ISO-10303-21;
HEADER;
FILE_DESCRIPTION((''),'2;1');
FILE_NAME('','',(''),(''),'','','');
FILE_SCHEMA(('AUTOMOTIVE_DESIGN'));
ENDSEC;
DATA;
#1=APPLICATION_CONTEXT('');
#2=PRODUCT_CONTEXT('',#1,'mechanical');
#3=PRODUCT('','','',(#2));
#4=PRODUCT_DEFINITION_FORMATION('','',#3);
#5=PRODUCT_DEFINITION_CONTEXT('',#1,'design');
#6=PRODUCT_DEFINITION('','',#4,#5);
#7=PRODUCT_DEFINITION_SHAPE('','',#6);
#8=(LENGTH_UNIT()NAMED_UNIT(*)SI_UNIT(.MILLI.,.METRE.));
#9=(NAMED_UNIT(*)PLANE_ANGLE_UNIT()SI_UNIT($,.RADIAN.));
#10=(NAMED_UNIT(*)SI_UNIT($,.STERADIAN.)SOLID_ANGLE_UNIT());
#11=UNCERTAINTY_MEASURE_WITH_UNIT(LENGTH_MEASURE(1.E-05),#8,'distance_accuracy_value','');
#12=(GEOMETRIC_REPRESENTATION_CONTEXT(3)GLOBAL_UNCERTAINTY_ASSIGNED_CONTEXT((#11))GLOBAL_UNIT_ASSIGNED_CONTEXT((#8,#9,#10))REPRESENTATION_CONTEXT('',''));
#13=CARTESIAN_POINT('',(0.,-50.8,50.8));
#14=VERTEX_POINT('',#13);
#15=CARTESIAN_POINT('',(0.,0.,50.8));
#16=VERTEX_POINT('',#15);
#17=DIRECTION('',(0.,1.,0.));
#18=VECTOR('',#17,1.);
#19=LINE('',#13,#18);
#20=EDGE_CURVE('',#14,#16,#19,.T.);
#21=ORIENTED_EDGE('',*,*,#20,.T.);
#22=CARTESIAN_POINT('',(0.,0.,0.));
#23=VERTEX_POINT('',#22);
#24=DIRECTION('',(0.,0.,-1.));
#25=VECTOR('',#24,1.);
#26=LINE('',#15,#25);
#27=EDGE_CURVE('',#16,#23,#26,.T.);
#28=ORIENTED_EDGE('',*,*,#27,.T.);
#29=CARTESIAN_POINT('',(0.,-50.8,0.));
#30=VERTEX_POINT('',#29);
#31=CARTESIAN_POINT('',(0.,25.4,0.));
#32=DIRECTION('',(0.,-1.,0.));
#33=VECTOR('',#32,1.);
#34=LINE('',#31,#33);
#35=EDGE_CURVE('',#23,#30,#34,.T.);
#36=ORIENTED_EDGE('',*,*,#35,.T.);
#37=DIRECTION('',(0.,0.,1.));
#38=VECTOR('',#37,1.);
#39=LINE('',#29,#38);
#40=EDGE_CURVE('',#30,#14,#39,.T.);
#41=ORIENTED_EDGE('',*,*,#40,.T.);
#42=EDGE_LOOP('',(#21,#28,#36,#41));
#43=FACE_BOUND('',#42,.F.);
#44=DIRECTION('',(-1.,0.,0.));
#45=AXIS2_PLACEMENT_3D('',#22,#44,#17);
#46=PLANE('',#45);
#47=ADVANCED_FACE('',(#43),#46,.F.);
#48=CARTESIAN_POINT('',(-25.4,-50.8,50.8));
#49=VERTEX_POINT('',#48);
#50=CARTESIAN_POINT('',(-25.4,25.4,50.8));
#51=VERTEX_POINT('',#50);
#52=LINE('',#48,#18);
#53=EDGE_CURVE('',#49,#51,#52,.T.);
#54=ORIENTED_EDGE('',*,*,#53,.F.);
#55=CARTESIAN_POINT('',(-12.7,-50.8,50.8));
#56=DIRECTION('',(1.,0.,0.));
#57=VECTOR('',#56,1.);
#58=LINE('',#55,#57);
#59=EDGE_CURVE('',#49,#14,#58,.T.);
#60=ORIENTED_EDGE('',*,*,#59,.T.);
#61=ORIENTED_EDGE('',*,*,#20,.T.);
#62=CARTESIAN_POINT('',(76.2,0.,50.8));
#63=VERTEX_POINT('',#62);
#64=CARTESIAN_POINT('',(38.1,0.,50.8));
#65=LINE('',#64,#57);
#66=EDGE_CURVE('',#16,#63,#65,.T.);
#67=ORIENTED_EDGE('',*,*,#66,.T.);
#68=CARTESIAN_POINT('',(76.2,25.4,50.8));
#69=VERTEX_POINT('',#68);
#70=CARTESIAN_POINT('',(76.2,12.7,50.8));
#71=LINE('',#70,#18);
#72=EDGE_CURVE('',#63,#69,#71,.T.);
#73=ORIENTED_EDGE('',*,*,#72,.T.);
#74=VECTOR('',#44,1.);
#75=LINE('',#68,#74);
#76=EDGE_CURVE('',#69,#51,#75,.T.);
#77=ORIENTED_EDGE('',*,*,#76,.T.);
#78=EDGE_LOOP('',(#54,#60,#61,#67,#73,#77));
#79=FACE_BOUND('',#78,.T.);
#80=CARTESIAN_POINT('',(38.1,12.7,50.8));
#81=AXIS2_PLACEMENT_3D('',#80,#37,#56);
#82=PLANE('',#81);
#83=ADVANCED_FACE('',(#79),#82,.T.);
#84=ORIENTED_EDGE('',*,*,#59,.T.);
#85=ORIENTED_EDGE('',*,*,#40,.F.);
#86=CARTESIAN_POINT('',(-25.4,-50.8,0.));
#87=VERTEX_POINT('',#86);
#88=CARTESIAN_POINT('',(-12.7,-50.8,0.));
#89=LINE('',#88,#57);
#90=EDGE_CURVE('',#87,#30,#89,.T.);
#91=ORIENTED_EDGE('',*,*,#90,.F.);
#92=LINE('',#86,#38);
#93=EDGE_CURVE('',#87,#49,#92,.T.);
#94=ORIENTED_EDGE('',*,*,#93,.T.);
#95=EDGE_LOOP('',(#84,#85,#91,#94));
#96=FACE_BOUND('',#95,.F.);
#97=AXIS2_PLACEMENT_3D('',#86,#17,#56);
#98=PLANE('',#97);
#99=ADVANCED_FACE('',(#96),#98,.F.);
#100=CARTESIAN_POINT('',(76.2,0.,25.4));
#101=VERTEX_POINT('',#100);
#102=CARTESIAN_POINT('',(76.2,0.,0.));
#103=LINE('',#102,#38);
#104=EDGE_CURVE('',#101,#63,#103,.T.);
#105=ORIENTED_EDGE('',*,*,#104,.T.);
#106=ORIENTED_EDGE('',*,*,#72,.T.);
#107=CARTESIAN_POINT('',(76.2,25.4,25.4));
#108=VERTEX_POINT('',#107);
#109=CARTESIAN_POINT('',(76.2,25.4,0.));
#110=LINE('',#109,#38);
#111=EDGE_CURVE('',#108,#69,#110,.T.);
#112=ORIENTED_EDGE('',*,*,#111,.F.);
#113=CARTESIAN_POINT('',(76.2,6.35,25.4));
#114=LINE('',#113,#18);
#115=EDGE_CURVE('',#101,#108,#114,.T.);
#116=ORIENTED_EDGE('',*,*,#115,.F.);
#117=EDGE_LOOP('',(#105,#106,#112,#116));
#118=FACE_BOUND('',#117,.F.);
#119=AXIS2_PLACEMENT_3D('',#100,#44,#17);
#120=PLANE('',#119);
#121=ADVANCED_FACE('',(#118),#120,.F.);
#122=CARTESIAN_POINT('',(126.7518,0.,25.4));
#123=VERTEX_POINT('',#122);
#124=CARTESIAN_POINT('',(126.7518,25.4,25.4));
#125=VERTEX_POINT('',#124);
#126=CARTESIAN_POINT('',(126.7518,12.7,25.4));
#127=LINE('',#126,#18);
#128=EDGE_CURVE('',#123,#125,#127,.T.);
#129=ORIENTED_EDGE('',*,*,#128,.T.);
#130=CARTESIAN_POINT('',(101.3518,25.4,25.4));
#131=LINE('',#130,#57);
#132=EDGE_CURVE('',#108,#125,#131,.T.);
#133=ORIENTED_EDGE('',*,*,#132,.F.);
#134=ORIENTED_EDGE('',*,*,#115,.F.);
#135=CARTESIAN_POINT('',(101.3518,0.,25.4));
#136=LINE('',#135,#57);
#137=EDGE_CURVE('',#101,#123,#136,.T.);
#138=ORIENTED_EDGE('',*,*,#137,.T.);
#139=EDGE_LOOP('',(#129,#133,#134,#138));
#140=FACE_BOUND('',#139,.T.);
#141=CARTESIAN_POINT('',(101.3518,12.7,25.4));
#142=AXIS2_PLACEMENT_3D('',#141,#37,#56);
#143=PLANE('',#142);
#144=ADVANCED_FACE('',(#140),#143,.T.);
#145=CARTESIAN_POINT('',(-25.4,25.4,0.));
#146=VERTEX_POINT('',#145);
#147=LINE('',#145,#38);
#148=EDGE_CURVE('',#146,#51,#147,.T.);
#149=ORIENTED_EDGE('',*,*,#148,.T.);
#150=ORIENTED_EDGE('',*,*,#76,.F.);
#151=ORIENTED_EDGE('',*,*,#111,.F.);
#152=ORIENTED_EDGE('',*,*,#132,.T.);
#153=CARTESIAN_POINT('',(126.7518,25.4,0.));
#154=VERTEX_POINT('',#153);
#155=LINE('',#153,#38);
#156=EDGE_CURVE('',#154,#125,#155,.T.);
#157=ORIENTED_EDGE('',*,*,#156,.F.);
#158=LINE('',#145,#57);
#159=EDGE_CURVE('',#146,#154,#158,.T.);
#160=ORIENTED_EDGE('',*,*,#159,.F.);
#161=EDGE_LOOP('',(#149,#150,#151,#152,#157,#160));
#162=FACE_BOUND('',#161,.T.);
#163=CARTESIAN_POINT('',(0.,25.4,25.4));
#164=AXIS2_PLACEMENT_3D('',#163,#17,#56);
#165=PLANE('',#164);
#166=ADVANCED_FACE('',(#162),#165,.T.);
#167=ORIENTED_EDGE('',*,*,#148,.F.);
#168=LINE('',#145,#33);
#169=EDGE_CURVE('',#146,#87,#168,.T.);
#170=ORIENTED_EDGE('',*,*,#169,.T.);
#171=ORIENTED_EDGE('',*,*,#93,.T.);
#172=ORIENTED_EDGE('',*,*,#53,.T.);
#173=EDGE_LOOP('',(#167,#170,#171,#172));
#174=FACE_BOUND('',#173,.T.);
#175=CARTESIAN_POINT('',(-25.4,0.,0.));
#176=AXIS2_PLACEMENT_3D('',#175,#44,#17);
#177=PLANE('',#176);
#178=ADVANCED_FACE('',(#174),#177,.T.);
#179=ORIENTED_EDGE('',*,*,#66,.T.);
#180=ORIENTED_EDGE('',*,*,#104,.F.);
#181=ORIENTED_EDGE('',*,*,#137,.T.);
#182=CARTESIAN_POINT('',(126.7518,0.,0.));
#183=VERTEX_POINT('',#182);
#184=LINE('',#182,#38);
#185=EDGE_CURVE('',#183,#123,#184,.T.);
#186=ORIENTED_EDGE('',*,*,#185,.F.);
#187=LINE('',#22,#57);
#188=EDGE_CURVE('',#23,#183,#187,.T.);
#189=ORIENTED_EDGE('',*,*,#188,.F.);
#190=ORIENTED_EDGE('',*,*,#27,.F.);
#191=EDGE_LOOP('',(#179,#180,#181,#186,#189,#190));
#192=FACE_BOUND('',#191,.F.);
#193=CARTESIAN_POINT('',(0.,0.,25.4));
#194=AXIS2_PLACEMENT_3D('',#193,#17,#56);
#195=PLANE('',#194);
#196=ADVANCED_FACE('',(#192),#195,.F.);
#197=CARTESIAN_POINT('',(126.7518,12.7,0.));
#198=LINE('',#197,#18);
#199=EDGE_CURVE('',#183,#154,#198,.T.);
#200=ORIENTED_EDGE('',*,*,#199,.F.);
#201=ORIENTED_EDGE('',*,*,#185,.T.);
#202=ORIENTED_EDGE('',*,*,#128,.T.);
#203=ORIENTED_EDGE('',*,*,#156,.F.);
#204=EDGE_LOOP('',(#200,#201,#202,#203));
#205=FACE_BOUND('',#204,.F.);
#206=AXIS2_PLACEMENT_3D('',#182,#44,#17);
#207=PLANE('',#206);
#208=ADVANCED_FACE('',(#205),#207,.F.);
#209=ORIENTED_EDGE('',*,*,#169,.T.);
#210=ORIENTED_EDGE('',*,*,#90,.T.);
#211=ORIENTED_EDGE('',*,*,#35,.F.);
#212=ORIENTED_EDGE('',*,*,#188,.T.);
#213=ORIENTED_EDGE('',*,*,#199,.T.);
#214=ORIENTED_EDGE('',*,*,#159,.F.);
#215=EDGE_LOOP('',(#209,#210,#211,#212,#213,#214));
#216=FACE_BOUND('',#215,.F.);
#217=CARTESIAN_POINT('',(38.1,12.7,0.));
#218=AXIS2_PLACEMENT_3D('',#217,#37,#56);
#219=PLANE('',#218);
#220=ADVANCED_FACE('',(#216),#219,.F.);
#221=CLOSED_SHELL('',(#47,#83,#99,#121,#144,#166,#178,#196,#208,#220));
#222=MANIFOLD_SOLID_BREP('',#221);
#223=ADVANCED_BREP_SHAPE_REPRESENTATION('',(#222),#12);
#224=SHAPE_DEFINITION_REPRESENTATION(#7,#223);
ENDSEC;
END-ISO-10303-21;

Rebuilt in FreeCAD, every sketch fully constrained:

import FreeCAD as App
import Part
import Sketcher
from FreeCAD import Vector
Q = App.Units.Quantity

doc = App.newDocument("Part")
body = doc.addObject("PartDesign::Body", "Body")

# Sketch on XY plane
sketch1 = body.newObject("Sketcher::SketchObject", "Sketch")
sketch1.AttachmentSupport = (doc.getObject("XY_Plane"), [""])
sketch1.MapMode = "FlatFace"
sketch1.addGeometry([
    Part.LineSegment(Vector(-25, 0, 0), Vector(-25, -51, 0)),
    Part.LineSegment(Vector(-25, -51, 0), Vector(0, -51, 0)),
    Part.LineSegment(Vector(0, -51, 0), Vector(0, 0, 0)),
    Part.LineSegment(Vector(0, 0, 0), Vector(-25, 0, 0)),
], False)
sketch1.addConstraint([
    Sketcher.Constraint("Coincident", 0, 2, 1, 1),
    Sketcher.Constraint("Coincident", 1, 2, 2, 1),
    Sketcher.Constraint("Coincident", 2, 2, 3, 1),
    Sketcher.Constraint("Coincident", 3, 2, 0, 1),
    Sketcher.Constraint("Vertical", 0),
    Sketcher.Constraint("Horizontal", 1),
    Sketcher.Constraint("Vertical", 2),
    Sketcher.Constraint("Horizontal", 3),
    Sketcher.Constraint("Coincident", 2, 2, -1, 1),
    Sketcher.Constraint("DistanceX", 1, 1, 1, 2, Q("1 in")),
    Sketcher.Constraint("DistanceY", 0, 2, 0, 1, Q("2 in")),
])
pad1 = body.newObject("PartDesign::Pad", "Pad")
pad1.Profile = sketch1
pad1.Length = Q("2 in")

# Sketch on XY plane
sketch2 = body.newObject("Sketcher::SketchObject", "Sketch001")
sketch2.AttachmentSupport = (doc.getObject("XY_Plane"), [""])
sketch2.MapMode = "FlatFace"
sketch2.addGeometry([
    Part.LineSegment(Vector(-25, 25, 0), Vector(-25, 0, 0)),
    Part.LineSegment(Vector(-25, 0, 0), Vector(0, 0, 0)),
    Part.LineSegment(Vector(0, 0, 0), Vector(0, 25, 0)),
    Part.LineSegment(Vector(0, 25, 0), Vector(-25, 25, 0)),
], False)
sketch2.addConstraint([
    Sketcher.Constraint("Coincident", 0, 2, 1, 1),
    Sketcher.Constraint("Coincident", 1, 2, 2, 1),
    Sketcher.Constraint("Coincident", 2, 2, 3, 1),
    Sketcher.Constraint("Coincident", 3, 2, 0, 1),
    Sketcher.Constraint("Vertical", 0),
    Sketcher.Constraint("Horizontal", 1),
    Sketcher.Constraint("Vertical", 2),
    Sketcher.Constraint("Horizontal", 3),
    Sketcher.Constraint("Coincident", 1, 2, -1, 1),
    Sketcher.Constraint("Equal", 3, 0),
    Sketcher.Constraint("DistanceX", 1, 1, 1, 2, Q("1 in")),
])
pad2 = body.newObject("PartDesign::Pad", "Pad001")
pad2.Profile = sketch2
pad2.Length = Q("2 in")

# Sketch on XY plane
sketch3 = body.newObject("Sketcher::SketchObject", "Sketch002")
sketch3.AttachmentSupport = (doc.getObject("XY_Plane"), [""])
sketch3.MapMode = "FlatFace"
sketch3.addGeometry([
    Part.LineSegment(Vector(0, 25, 0), Vector(0, 0, 0)),
    Part.LineSegment(Vector(0, 0, 0), Vector(76, 0, 0)),
    Part.LineSegment(Vector(76, 0, 0), Vector(76, 25, 0)),
    Part.LineSegment(Vector(76, 25, 0), Vector(0, 25, 0)),
], False)
sketch3.addConstraint([
    Sketcher.Constraint("Coincident", 0, 2, 1, 1),
    Sketcher.Constraint("Coincident", 1, 2, 2, 1),
    Sketcher.Constraint("Coincident", 2, 2, 3, 1),
    Sketcher.Constraint("Coincident", 3, 2, 0, 1),
    Sketcher.Constraint("Vertical", 0),
    Sketcher.Constraint("Horizontal", 1),
    Sketcher.Constraint("Vertical", 2),
    Sketcher.Constraint("Horizontal", 3),
    Sketcher.Constraint("Coincident", 0, 2, -1, 1),
    Sketcher.Constraint("DistanceX", 1, 1, 1, 2, Q("3 in")),
    Sketcher.Constraint("DistanceY", 0, 2, 0, 1, Q("1 in")),
])
pad3 = body.newObject("PartDesign::Pad", "Pad002")
pad3.Profile = sketch3
pad3.Length = Q("1 in")

# Sketch on XY plane
sketch4 = body.newObject("Sketcher::SketchObject", "Sketch003")
sketch4.AttachmentSupport = (doc.getObject("XY_Plane"), [""])
sketch4.MapMode = "FlatFace"
sketch4.AttachmentOffset = App.Placement(Vector(0, 0, 1 * 25.4), App.Rotation())
sketch4.addGeometry([
    Part.LineSegment(Vector(0, 25, 0), Vector(0, 0, 0)),
    Part.LineSegment(Vector(0, 0, 0), Vector(76, 0, 0)),
    Part.LineSegment(Vector(76, 0, 0), Vector(76, 25, 0)),
    Part.LineSegment(Vector(76, 25, 0), Vector(0, 25, 0)),
], False)
sketch4.addConstraint([
    Sketcher.Constraint("Coincident", 0, 2, 1, 1),
    Sketcher.Constraint("Coincident", 1, 2, 2, 1),
    Sketcher.Constraint("Coincident", 2, 2, 3, 1),
    Sketcher.Constraint("Coincident", 3, 2, 0, 1),
    Sketcher.Constraint("Vertical", 0),
    Sketcher.Constraint("Horizontal", 1),
    Sketcher.Constraint("Vertical", 2),
    Sketcher.Constraint("Horizontal", 3),
    Sketcher.Constraint("Coincident", 0, 2, -1, 1),
    Sketcher.Constraint("DistanceX", 1, 1, 1, 2, Q("3 in")),
    Sketcher.Constraint("DistanceY", 0, 2, 0, 1, Q("1 in")),
])
pad4 = body.newObject("PartDesign::Pad", "Pad003")
pad4.Profile = sketch4
pad4.Length = Q("1 in")

# Sketch on XY plane
sketch5 = body.newObject("Sketcher::SketchObject", "Sketch004")
sketch5.AttachmentSupport = (doc.getObject("XY_Plane"), [""])
sketch5.MapMode = "FlatFace"
sketch5.addGeometry([
    Part.LineSegment(Vector(76, 25, 0), Vector(76, 0, 0)),
    Part.LineSegment(Vector(76, 0, 0), Vector(127, 0, 0)),
    Part.LineSegment(Vector(127, 0, 0), Vector(127, 25, 0)),
    Part.LineSegment(Vector(127, 25, 0), Vector(76, 25, 0)),
], False)
sketch5.addConstraint([
    Sketcher.Constraint("Coincident", 0, 2, 1, 1),
    Sketcher.Constraint("Coincident", 1, 2, 2, 1),
    Sketcher.Constraint("Coincident", 2, 2, 3, 1),
    Sketcher.Constraint("Coincident", 3, 2, 0, 1),
    Sketcher.Constraint("Vertical", 0),
    Sketcher.Constraint("Horizontal", 1),
    Sketcher.Constraint("Vertical", 2),
    Sketcher.Constraint("Horizontal", 3),
    Sketcher.Constraint("PointOnObject", 0, 2, -1),
    Sketcher.Constraint("DistanceX", 1, 1, 1, 2, Q("2 in")),
    Sketcher.Constraint("DistanceY", 0, 2, 0, 1, Q("1 in")),
    Sketcher.Constraint("DistanceX", -1, 1, 0, 2, Q("75.9518 mm")),
])
pad5 = body.newObject("PartDesign::Pad", "Pad004")
pad5.Profile = sketch5
pad5.Length = Q("1 in")

doc.recompute()
